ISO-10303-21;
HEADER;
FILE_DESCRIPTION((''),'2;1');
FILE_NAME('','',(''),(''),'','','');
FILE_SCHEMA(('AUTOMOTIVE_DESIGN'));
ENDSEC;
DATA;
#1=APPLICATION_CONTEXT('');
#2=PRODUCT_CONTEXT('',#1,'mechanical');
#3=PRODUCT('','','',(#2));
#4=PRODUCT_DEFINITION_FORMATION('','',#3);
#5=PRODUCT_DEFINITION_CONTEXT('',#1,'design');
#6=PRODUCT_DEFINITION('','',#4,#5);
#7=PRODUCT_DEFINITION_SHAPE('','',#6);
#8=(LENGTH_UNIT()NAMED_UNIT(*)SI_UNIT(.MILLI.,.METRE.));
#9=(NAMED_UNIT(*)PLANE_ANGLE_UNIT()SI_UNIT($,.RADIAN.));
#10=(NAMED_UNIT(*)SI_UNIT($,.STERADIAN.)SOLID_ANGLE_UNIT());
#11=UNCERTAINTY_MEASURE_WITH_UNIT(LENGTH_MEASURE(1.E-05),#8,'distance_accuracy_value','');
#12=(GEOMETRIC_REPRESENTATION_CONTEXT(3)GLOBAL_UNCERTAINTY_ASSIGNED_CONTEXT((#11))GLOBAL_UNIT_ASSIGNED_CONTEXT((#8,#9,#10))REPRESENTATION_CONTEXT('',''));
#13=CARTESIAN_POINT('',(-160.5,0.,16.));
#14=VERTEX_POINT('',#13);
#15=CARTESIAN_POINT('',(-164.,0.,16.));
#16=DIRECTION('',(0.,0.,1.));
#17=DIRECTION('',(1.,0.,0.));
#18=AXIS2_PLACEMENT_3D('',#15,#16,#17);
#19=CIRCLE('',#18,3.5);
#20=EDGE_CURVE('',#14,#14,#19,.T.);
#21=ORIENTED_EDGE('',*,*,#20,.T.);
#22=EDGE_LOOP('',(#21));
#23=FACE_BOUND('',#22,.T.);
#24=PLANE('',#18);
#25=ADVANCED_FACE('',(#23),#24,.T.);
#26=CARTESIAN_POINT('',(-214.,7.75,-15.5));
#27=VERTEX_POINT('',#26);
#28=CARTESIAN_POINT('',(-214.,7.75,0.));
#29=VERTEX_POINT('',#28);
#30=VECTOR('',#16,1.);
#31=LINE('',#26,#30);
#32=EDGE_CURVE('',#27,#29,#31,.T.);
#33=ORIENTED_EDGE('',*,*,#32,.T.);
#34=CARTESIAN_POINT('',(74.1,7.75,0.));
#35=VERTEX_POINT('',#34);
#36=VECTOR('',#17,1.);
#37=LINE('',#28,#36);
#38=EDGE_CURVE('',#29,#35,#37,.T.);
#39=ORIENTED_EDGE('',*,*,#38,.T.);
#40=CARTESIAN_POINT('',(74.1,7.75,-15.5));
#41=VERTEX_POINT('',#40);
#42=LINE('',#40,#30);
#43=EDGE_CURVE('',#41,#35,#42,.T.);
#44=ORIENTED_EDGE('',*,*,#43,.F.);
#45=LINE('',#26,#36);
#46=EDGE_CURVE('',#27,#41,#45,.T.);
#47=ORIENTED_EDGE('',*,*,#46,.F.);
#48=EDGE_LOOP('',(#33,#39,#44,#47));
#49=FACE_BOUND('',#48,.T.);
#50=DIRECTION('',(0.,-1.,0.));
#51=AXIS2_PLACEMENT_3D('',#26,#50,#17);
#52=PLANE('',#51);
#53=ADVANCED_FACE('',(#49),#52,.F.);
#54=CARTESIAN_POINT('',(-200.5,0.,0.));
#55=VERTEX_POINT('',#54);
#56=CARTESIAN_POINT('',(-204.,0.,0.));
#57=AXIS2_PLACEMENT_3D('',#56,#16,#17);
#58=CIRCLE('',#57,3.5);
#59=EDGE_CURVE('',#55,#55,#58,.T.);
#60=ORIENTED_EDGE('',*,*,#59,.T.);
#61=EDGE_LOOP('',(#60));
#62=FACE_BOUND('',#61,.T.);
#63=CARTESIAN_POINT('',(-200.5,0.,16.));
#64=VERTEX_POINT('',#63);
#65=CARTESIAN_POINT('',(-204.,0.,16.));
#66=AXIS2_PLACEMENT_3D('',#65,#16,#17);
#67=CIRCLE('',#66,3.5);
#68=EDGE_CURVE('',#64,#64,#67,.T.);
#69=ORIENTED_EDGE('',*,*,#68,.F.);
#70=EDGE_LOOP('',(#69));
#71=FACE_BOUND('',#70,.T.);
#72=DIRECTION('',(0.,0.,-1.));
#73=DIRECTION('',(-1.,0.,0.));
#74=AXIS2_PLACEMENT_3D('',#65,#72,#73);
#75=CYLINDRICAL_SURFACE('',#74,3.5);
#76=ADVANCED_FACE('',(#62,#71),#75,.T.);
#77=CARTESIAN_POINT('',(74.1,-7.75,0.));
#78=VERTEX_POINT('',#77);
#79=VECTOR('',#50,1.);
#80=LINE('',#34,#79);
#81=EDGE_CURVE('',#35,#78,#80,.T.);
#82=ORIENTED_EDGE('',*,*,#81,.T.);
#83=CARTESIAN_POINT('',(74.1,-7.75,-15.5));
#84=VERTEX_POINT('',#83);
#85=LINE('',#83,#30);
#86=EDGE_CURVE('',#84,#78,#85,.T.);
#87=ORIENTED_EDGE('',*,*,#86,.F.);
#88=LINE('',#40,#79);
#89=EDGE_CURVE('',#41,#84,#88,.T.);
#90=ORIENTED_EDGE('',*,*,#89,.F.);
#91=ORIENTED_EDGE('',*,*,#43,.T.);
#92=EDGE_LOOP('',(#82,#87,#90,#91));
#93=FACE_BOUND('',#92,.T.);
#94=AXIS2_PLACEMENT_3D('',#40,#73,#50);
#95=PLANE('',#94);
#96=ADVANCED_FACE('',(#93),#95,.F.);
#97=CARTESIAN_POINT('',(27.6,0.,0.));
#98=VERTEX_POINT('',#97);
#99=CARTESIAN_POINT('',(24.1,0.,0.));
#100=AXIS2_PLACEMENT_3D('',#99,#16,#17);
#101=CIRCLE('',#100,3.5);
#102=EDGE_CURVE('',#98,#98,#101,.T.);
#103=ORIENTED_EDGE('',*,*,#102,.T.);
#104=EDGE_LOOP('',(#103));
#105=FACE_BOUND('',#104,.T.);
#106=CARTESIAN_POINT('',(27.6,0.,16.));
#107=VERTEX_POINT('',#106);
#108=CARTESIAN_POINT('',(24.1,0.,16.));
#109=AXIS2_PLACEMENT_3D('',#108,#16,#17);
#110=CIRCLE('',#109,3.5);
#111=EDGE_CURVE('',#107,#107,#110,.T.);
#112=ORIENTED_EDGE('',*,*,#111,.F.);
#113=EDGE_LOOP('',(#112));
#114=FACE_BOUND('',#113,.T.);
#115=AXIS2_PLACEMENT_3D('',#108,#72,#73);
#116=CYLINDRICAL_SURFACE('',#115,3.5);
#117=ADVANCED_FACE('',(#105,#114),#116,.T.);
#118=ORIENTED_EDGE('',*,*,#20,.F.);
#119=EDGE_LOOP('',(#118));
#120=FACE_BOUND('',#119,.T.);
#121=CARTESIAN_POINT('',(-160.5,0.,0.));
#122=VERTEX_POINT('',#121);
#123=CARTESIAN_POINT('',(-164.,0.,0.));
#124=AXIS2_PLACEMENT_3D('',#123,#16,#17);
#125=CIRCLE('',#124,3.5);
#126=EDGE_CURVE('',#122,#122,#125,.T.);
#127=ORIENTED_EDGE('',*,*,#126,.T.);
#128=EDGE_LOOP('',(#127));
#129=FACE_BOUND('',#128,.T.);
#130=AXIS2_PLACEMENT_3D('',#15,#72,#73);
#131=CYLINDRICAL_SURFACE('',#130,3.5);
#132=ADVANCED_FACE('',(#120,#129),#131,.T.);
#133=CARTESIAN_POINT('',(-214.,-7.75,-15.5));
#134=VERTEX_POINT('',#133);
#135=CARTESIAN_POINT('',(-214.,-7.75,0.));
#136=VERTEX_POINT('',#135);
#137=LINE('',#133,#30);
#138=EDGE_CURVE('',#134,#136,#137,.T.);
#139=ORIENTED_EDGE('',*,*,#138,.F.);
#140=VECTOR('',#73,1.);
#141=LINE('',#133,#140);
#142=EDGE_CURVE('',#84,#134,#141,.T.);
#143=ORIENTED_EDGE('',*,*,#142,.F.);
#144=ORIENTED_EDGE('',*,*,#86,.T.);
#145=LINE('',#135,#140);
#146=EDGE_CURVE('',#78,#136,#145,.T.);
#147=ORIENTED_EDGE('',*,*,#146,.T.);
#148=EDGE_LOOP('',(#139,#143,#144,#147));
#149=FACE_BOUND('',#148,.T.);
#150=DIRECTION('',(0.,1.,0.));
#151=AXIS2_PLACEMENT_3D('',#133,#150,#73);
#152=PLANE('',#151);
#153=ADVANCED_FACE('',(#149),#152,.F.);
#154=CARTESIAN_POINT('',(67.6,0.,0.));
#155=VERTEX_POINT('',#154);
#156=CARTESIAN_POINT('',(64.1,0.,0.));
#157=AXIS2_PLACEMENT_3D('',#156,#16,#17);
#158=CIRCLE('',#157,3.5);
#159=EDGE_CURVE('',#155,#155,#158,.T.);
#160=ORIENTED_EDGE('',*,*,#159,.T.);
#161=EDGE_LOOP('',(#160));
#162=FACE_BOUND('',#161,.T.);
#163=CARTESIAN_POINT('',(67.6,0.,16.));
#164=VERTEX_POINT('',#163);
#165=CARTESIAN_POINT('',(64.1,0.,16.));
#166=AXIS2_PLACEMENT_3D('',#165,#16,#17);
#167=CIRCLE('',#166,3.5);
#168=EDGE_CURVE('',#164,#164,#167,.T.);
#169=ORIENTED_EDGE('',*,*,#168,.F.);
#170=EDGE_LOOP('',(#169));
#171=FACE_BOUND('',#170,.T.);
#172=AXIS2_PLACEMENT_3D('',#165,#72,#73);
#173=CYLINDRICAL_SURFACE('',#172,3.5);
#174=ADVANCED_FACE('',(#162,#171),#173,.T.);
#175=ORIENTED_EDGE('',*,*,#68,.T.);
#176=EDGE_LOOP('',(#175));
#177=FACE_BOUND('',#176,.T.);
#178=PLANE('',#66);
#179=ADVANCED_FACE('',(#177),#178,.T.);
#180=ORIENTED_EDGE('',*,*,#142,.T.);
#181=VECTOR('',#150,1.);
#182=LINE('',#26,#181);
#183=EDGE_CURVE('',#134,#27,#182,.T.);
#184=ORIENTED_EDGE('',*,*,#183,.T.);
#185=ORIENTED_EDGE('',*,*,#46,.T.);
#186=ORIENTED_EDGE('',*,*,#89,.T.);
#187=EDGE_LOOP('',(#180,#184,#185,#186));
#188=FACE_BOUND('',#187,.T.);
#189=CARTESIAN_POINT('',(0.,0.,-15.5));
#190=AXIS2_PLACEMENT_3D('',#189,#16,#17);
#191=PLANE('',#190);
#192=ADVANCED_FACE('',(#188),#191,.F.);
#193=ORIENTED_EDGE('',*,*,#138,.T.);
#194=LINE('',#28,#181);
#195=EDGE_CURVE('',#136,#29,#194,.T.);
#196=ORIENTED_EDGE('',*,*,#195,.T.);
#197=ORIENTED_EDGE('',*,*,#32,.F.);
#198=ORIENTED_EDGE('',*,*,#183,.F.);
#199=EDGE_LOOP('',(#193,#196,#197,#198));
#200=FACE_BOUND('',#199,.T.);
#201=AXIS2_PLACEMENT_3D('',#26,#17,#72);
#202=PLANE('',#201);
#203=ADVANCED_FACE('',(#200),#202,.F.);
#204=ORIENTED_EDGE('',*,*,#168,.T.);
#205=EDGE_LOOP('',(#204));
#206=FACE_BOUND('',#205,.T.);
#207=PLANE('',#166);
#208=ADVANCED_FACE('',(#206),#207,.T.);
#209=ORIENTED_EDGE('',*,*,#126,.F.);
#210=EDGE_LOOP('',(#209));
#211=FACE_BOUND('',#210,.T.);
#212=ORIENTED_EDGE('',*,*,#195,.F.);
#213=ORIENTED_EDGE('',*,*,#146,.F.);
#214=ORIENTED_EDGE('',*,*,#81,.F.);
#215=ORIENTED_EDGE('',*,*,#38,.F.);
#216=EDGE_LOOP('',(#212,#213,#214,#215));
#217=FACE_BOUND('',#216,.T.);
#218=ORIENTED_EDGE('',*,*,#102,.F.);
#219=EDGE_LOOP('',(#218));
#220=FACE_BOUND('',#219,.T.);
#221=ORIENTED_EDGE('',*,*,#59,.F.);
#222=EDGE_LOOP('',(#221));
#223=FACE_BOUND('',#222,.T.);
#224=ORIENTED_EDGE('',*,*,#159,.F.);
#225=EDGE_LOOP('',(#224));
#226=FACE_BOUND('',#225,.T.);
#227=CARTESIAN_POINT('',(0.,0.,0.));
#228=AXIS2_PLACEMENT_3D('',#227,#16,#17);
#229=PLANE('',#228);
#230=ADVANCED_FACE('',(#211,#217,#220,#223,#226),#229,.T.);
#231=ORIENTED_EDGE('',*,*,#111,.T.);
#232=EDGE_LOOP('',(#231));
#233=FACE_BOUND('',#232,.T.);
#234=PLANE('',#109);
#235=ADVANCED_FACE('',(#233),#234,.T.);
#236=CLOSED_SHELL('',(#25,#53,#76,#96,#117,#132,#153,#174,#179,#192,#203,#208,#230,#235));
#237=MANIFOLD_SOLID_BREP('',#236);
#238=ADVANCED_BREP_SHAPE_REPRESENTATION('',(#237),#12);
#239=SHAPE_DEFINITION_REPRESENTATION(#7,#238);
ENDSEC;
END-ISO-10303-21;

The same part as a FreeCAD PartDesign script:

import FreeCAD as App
import Part
import Sketcher

V = App.Vector
Q = App.Units.Quantity


def add_polygon(sketch, points):
    """Adds a closed chain of lines whose ends are joined by coincident constraints."""
    first, n = sketch.GeometryCount, len(points)
    for a, b in zip(points, points[1:] + points[:1]):
        sketch.addGeometry(Part.LineSegment(App.Vector(*a, 0), App.Vector(*b, 0)), False)
    for i in range(n):
        sketch.addConstraint(Sketcher.Constraint("Coincident", first + i, 2, first + (i + 1) % n, 1))

doc = App.newDocument("Part")
params = doc.addObject("Spreadsheet::Sheet", "Params")
for row, (alias, value) in enumerate([
    ("sketch1_diameter", "7 mm"),
    ("pad1_length", "16 mm"),
    ("sketch2_diameter", "7 mm"),
    ("pad2_length", "16 mm"),
    ("sketch3_diameter", "7 mm"),
    ("pad3_length", "16 mm"),
    ("sketch4_diameter", "7 mm"),
    ("pad4_length", "16 mm"),
    ("sketch5_width", "288.1 mm"),
    ("sketch5_height", "15.5 mm"),
    ("pad5_length", "15.5 mm"),
], start=1):
    params.set(f"A{row}", alias)
    params.set(f"B{row}", "=" + value)
    params.setAlias(f"B{row}", alias)

body = doc.addObject("PartDesign::Body", "Body")

sketch1 = body.newObject("Sketcher::SketchObject", "Sketch")
sketch1.AttachmentSupport = (doc.getObject("XY_Plane"), [""])
sketch1.MapMode = "FlatFace"
sketch1.addGeometry(Part.Circle(V(-164, 0, 0), V(0, 0, 1), 3.5), False)
sketch1.addConstraint(Sketcher.Constraint("PointOnObject", 0, 3, -1))
sketch1.addConstraint(Sketcher.Constraint("Diameter", 0, Q("7 mm")))
sketch1.addConstraint(Sketcher.Constraint("DistanceX", 0, 3, -1, 1, Q("164 mm")))
sketch1.setExpression("Constraints[1]", "Params.sketch1_diameter")
pad1 = body.newObject("PartDesign::Pad", "Pad")
pad1.Profile = sketch1
pad1.setExpression("Length", "Params.pad1_length")
body2 = doc.addObject("PartDesign::Body", "Body001")

sketch2 = body2.newObject("Sketcher::SketchObject", "Sketch001")
sketch2.AttachmentSupport = (doc.getObject("XY_Plane001"), [""])
sketch2.MapMode = "FlatFace"
sketch2.addGeometry(Part.Circle(V(24.1, 0, 0), V(0, 0, 1), 3.5), False)
sketch2.addConstraint(Sketcher.Constraint("PointOnObject", 0, 3, -1))
sketch2.addConstraint(Sketcher.Constraint("Diameter", 0, Q("7 mm")))
sketch2.addConstraint(Sketcher.Constraint("DistanceX", -1, 1, 0, 3, Q("24.1 mm")))
sketch2.setExpression("Constraints[1]", "Params.sketch2_diameter")
pad2 = body2.newObject("PartDesign::Pad", "Pad001")
pad2.Profile = sketch2
pad2.setExpression("Length", "Params.pad2_length")
body3 = doc.addObject("PartDesign::Body", "Body002")

sketch3 = body3.newObject("Sketcher::SketchObject", "Sketch002")
sketch3.AttachmentSupport = (doc.getObject("XY_Plane002"), [""])
sketch3.MapMode = "FlatFace"
sketch3.addGeometry(Part.Circle(V(-204, 0, 0), V(0, 0, 1), 3.5), False)
sketch3.addConstraint(Sketcher.Constraint("PointOnObject", 0, 3, -1))
sketch3.addConstraint(Sketcher.Constraint("Diameter", 0, Q("7 mm")))
sketch3.addConstraint(Sketcher.Constraint("DistanceX", 0, 3, -1, 1, Q("204 mm")))
sketch3.setExpression("Constraints[1]", "Params.sketch3_diameter")
pad3 = body3.newObject("PartDesign::Pad", "Pad002")
pad3.Profile = sketch3
pad3.setExpression("Length", "Params.pad3_length")
body4 = doc.addObject("PartDesign::Body", "Body003")

sketch4 = body4.newObject("Sketcher::SketchObject", "Sketch003")
sketch4.AttachmentSupport = (doc.getObject("XY_Plane003"), [""])
sketch4.MapMode = "FlatFace"
sketch4.addGeometry(Part.Circle(V(64.1, 0, 0), V(0, 0, 1), 3.5), False)
sketch4.addConstraint(Sketcher.Constraint("PointOnObject", 0, 3, -1))
sketch4.addConstraint(Sketcher.Constraint("Diameter", 0, Q("7 mm")))
sketch4.addConstraint(Sketcher.Constraint("DistanceX", -1, 1, 0, 3, Q("64.1 mm")))
sketch4.setExpression("Constraints[1]", "Params.sketch4_diameter")
pad4 = body4.newObject("PartDesign::Pad", "Pad003")
pad4.Profile = sketch4
pad4.setExpression("Length", "Params.pad4_length")
body.AllowCompound = True
doc.recompute()

boolean = body.newObject("PartDesign::Boolean", "Boolean")
boolean.Type = "Fuse"
boolean.addObjects([body2])
doc.recompute()

boolean2 = body.newObject("PartDesign::Boolean", "Boolean001")
boolean2.Type = "Fuse"
boolean2.addObjects([body3])
doc.recompute()

boolean3 = body.newObject("PartDesign::Boolean", "Boolean002")
boolean3.Type = "Fuse"
boolean3.addObjects([body4])

sketch5 = body.newObject("Sketcher::SketchObject", "Sketch004")
sketch5.AttachmentSupport = (doc.getObject("XY_Plane"), [""])
sketch5.MapMode = "FlatFace"
add_polygon(sketch5, [(74, 8), (74, -8), (-214, -8), (-214, 8)])
sketch5.addConstraint(Sketcher.Constraint("Vertical", 0))
sketch5.addConstraint(Sketcher.Constraint("Horizontal", 1))
sketch5.addConstraint(Sketcher.Constraint("Vertical", 2))
sketch5.addConstraint(Sketcher.Constraint("Horizontal", 3))
sketch5.addConstraint(Sketcher.Constraint("DistanceX", 1, 2, 1, 1, Q("288.1 mm")))
sketch5.addConstraint(Sketcher.Constraint("DistanceY", 0, 2, 0, 1, Q("15.5 mm")))
sketch5.addConstraint(Sketcher.Constraint("DistanceX", 1, 2, -1, 1, Q("214 mm")))
sketch5.addConstraint(Sketcher.Constraint("DistanceY", 0, 2, -1, 1, Q("7.75 mm")))
sketch5.setExpression("Constraints[8]", "Params.sketch5_width")
sketch5.setExpression("Constraints[9]", "Params.sketch5_height")
pad5 = body.newObject("PartDesign::Pad", "Pad004")
pad5.Profile = sketch5
pad5.setExpression("Length", "Params.pad5_length")
pad5.Reversed = True

doc.recompute()
